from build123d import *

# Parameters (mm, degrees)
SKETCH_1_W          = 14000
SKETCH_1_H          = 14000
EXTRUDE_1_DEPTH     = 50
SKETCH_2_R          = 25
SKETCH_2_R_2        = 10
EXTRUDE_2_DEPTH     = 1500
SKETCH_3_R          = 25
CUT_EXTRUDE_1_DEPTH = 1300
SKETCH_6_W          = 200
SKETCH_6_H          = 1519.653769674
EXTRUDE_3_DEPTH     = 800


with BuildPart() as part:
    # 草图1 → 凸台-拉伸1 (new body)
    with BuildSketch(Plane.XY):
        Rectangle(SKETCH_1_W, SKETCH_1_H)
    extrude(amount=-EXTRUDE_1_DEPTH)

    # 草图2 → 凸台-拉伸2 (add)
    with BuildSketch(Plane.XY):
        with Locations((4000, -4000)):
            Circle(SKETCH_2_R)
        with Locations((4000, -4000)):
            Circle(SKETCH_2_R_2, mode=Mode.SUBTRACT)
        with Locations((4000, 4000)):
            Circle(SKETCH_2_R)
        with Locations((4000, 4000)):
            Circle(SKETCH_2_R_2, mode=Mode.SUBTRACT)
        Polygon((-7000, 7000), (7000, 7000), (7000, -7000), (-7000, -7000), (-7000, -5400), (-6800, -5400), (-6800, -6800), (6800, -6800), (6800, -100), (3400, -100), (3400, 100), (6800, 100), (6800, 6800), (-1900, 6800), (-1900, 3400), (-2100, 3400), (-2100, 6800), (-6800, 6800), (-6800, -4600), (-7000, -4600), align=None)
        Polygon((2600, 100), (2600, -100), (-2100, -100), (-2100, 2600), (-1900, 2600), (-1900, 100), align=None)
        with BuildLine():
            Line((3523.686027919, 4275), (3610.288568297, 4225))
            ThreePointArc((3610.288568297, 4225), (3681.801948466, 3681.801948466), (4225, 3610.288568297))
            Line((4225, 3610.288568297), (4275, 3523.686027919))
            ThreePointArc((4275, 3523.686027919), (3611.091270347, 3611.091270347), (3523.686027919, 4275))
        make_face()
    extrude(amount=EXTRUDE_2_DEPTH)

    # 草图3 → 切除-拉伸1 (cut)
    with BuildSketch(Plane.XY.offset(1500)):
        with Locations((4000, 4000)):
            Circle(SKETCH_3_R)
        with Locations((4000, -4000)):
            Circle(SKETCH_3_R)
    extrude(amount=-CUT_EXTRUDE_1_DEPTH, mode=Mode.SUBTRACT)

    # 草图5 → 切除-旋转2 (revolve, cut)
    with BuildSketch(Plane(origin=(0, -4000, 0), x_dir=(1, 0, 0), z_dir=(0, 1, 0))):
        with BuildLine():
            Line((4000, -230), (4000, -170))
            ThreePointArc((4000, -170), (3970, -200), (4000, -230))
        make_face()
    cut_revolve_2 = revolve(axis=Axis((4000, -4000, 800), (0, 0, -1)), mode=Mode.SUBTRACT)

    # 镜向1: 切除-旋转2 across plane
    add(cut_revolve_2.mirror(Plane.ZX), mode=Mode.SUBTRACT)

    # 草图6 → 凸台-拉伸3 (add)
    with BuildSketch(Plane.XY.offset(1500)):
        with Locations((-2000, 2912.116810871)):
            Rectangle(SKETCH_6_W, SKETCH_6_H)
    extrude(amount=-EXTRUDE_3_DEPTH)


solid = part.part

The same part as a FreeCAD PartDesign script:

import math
import FreeCAD as App
import Part
import Sketcher

V = App.Vector
Q = App.Units.Quantity


def add_polygon(sketch, points):
    """Adds a closed chain of lines whose ends are joined by coincident constraints."""
    first, n = sketch.GeometryCount, len(points)
    for a, b in zip(points, points[1:] + points[:1]):
        sketch.addGeometry(Part.LineSegment(App.Vector(*a, 0), App.Vector(*b, 0)), False)
    for i in range(n):
        sketch.addConstraint(Sketcher.Constraint("Coincident", first + i, 2, first + (i + 1) % n, 1))

doc = App.newDocument("Part")
body = doc.addObject("PartDesign::Body", "Body")

# Sketch on XY plane
sketch1 = body.newObject("Sketcher::SketchObject", "Sketch")
sketch1.AttachmentSupport = (doc.getObject("XY_Plane"), [""])
sketch1.MapMode = "FlatFace"
add_polygon(sketch1, [(-7000, 7000), (-7000, -7000), (7000, -7000), (7000, 7000)])  # lines 0-3
sketch1.addConstraint(Sketcher.Constraint("Vertical", 0))
sketch1.addConstraint(Sketcher.Constraint("Horizontal", 1))
sketch1.addConstraint(Sketcher.Constraint("Vertical", 2))
sketch1.addConstraint(Sketcher.Constraint("Horizontal", 3))
sketch1.addConstraint(Sketcher.Constraint("Symmetric", 0, 2, 2, 2, -1, 1))
sketch1.addConstraint(Sketcher.Constraint("Equal", 3, 0))
sketch1.addConstraint(Sketcher.Constraint("DistanceX", 1, 1, 1, 2, Q("14000 mm")))
pad1 = body.newObject("PartDesign::Pad", "Pad")
pad1.Profile = sketch1
pad1.Length = 50
pad1.Reversed = True

# Sketch on XY plane
sketch2 = body.newObject("Sketcher::SketchObject", "Sketch001")
sketch2.AttachmentSupport = (doc.getObject("XY_Plane"), [""])
sketch2.MapMode = "FlatFace"
sketch2.addGeometry(Part.Circle(V(4000, -4000, 0), V(0, 0, 1), 25), False)  # 0
sketch2.addGeometry(Part.Circle(V(4000, -4000, 0), V(0, 0, 1), 10), False)  # 1
sketch2.addGeometry(Part.Circle(V(4000, 4000, 0), V(0, 0, 1), 25), False)  # 2
sketch2.addGeometry(Part.Circle(V(4000, 4000, 0), V(0, 0, 1), 10), False)  # 3
add_polygon(sketch2, [(7000, 7000), (-7000, 7000), (-7000, -4600), (-6800, -4600), (-6800, 6800), (-2100, 6800), (-2100, 3400), (-1900, 3400), (-1900, 6800), (6800, 6800), (6800, 100), (3400, 100), (3400, -100), (6800, -100), (6800, -6800), (-6800, -6800), (-6800, -5400), (-7000, -5400), (-7000, -7000), (7000, -7000)])  # lines 4-23
add_polygon(sketch2, [(2600, -100), (2600, 100), (-1900, 100), (-1900, 2600), (-2100, 2600), (-2100, -100)])  # lines 24-29
sketch2.addGeometry(Part.LineSegment(V(3610.288568, 4225, 0), V(3523.686028, 4275, 0)), False)  # 30
sketch2.addGeometry(Part.ArcOfCircle(Part.Circle(V(4000, 4000, 0), V(0, 0, 1), 550), math.radians(150), math.radians(300)), False)  # 31
sketch2.addGeometry(Part.LineSegment(V(4275, 3523.686028, 0), V(4225, 3610.288568, 0)), False)  # 32
sketch2.addGeometry(Part.ArcOfCircle(Part.Circle(V(4000, 4000, 0), V(0, 0, 1), 450), math.radians(150), math.radians(300)), False)  # 33
sketch2.addConstraint(Sketcher.Constraint("Coincident", 30, 2, 31, 1))
sketch2.addConstraint(Sketcher.Constraint("Coincident", 31, 2, 32, 1))
sketch2.addConstraint(Sketcher.Constraint("Coincident", 32, 2, 33, 2))
sketch2.addConstraint(Sketcher.Constraint("Coincident", 33, 1, 30, 1))
sketch2.addConstraint(Sketcher.Constraint("Horizontal", 4))
sketch2.addConstraint(Sketcher.Constraint("Vertical", 5))
sketch2.addConstraint(Sketcher.Constraint("Horizontal", 6))
sketch2.addConstraint(Sketcher.Constraint("Vertical", 7))
sketch2.addConstraint(Sketcher.Constraint("Horizontal", 8))
sketch2.addConstraint(Sketcher.Constraint("Vertical", 9))
sketch2.addConstraint(Sketcher.Constraint("Horizontal", 10))
sketch2.addConstraint(Sketcher.Constraint("Vertical", 11))
sketch2.addConstraint(Sketcher.Constraint("Horizontal", 12))
sketch2.addConstraint(Sketcher.Constraint("Vertical", 13))
sketch2.addConstraint(Sketcher.Constraint("Horizontal", 14))
sketch2.addConstraint(Sketcher.Constraint("Vertical", 15))
sketch2.addConstraint(Sketcher.Constraint("Horizontal", 16))
sketch2.addConstraint(Sketcher.Constraint("Vertical", 17))
sketch2.addConstraint(Sketcher.Constraint("Horizontal", 18))
sketch2.addConstraint(Sketcher.Constraint("Vertical", 19))
sketch2.addConstraint(Sketcher.Constraint("Horizontal", 20))
sketch2.addConstraint(Sketcher.Constraint("Vertical", 21))
sketch2.addConstraint(Sketcher.Constraint("Horizontal", 22))
sketch2.addConstraint(Sketcher.Constraint("Vertical", 23))
sketch2.addConstraint(Sketcher.Constraint("Vertical", 24))
sketch2.addConstraint(Sketcher.Constraint("Horizontal", 25))
sketch2.addConstraint(Sketcher.Constraint("Vertical", 26))
sketch2.addConstraint(Sketcher.Constraint("Horizontal", 27))
sketch2.addConstraint(Sketcher.Constraint("Vertical", 28))
sketch2.addConstraint(Sketcher.Constraint("Horizontal", 29))
sketch2.addConstraint(Sketcher.Constraint("Coincident", 1, 3, 0, 3))
sketch2.addConstraint(Sketcher.Constraint("Coincident", 3, 3, 2, 3))
sketch2.addConstraint(Sketcher.Constraint("Coincident", 31, 3, 2, 3))
sketch2.addConstraint(Sketcher.Constraint("Coincident", 33, 3, 2, 3))
sketch2.addConstraint(Sketcher.Constraint("Equal", 0, 2))
sketch2.addConstraint(Sketcher.Constraint("Equal", 1, 3))
sketch2.addConstraint(Sketcher.Constraint("Symmetric", 7, 2, 17, 2, -1, 1))
sketch2.addConstraint(Sketcher.Constraint("Symmetric", 12, 2, 18, 2, -1, 1))
sketch2.addConstraint(Sketcher.Constraint("Symmetric", 4, 2, 22, 2, -1, 1))
sketch2.addConstraint(Sketcher.Constraint("Symmetric", 0, 3, 2, 3, -1))
sketch2.addConstraint(Sketcher.Constraint("Symmetric", 13, 2, 16, 2, -1))
sketch2.addConstraint(Sketcher.Constraint("Horizontal", 14, 2, 24, 2))
sketch2.addConstraint(Sketcher.Constraint("Horizontal", 16, 2, 28, 2))
sketch2.addConstraint(Sketcher.Constraint("Vertical", 5, 2, 20, 2))
sketch2.addConstraint(Sketcher.Constraint("Vertical", 11, 2, 25, 2))
sketch2.addConstraint(Sketcher.Constraint("Vertical", 9, 2, 27, 2))
sketch2.addConstraint(Sketcher.Constraint("Equal", 6, 10))
sketch2.addConstraint(Sketcher.Constraint("Equal", 8, 29))
sketch2.addConstraint(Sketcher.Constraint("Equal", 16, 9))
sketch2.addConstraint(Sketcher.Constraint("Equal", 27, 15))
sketch2.addConstraint(Sketcher.Constraint("Equal", 22, 23))
sketch2.addConstraint(Sketcher.Constraint("Diameter", 0, Q("50 mm")))
sketch2.addConstraint(Sketcher.Constraint("Diameter", 1, Q("20 mm")))
sketch2.addConstraint(Sketcher.Constraint("Radius", 31, Q("550 mm")))
sketch2.addConstraint(Sketcher.Constraint("Radius", 33, Q("450 mm")))
sketch2.addConstraint(Sketcher.Constraint("DistanceX", 4, 2, 4, 1, Q("14000 mm")))
sketch2.addConstraint(Sketcher.Constraint("DistanceX", 6, 1, 6, 2, Q("200 mm")))
sketch2.addConstraint(Sketcher.Constraint("DistanceX", 8, 1, 8, 2, Q("4700 mm")))
sketch2.addConstraint(Sketcher.Constraint("DistanceX", 14, 2, 14, 1, Q("3400 mm")))
sketch2.addConstraint(Sketcher.Constraint("DistanceY", 5, 2, 5, 1, Q("11600 mm")))
sketch2.addConstraint(Sketcher.Constraint("DistanceY", 7, 1, 7, 2, Q("11400 mm")))
sketch2.addConstraint(Sketcher.Constraint("DistanceY", 19, 1, 19, 2, Q("1400 mm")))
sketch2.addConstraint(Sketcher.Constraint("DistanceY", 26, 1, 26, 2, Q("2500 mm")))
sketch2.addConstraint(Sketcher.Constraint("Angle", 30, Q("150 deg")))
sketch2.addConstraint(Sketcher.Constraint("Angle", 32, Q("120 deg")))
sketch2.addConstraint(Sketcher.Constraint("DistanceX", -1, 1, 0, 3, Q("4000 mm")))
sketch2.addConstraint(Sketcher.Constraint("DistanceY", 0, 3, -1, 1, Q("4000 mm")))
sketch2.addConstraint(Sketcher.Constraint("DistanceY", -1, 1, 30, 2, Q("4275 mm")))
sketch2.addConstraint(Sketcher.Constraint("DistanceX", -1, 1, 32, 2, Q("4225 mm")))
pad2 = body.newObject("PartDesign::Pad", "Pad001")
pad2.Profile = sketch2
pad2.Length = 1500

# Sketch on XY plane
sketch3 = body.newObject("Sketcher::SketchObject", "Sketch002")
sketch3.AttachmentSupport = (doc.getObject("XY_Plane"), [""])
sketch3.MapMode = "FlatFace"
sketch3.AttachmentOffset = App.Placement(V(0, 0, 1500), App.Rotation())
sketch3.addGeometry(Part.Circle(V(4000, 4000, 0), V(0, 0, 1), 25), False)
sketch3.addGeometry(Part.Circle(V(4000, -4000, 0), V(0, 0, 1), 25), False)
sketch3.addConstraint(Sketcher.Constraint("Equal", 0, 1))
sketch3.addConstraint(Sketcher.Constraint("Symmetric", 0, 3, 1, 3, -1))
sketch3.addConstraint(Sketcher.Constraint("Diameter", 0, Q("50 mm")))
sketch3.addConstraint(Sketcher.Constraint("DistanceX", -1, 1, 0, 3, Q("4000 mm")))
sketch3.addConstraint(Sketcher.Constraint("DistanceY", -1, 1, 0, 3, Q("4000 mm")))
pocket1 = body.newObject("PartDesign::Pocket", "Pocket")
pocket1.Profile = sketch3
pocket1.Length = 1300

# Sketch on XZ plane
sketch4 = body.newObject("Sketcher::SketchObject", "Sketch003")
sketch4.AttachmentSupport = (doc.getObject("XZ_Plane"), [""])
sketch4.MapMode = "FlatFace"
sketch4.AttachmentOffset = App.Placement(V(0, 0, 4000), App.Rotation())
sketch4.addGeometry(Part.LineSegment(V(4000, 230, 0), V(4000, 170, 0)), False)
sketch4.addGeometry(Part.ArcOfCircle(Part.Circle(V(4000, 200, 0), V(0, 0, 1), 30), math.radians(90), math.radians(270)), False)
sketch4.addGeometry(Part.LineSegment(V(4000, 230, 0), V(4000, 170, 0)), True)  # axis
sketch4.addConstraint(Sketcher.Constraint("Coincident", 0, 1, 1, 1))
sketch4.addConstraint(Sketcher.Constraint("Coincident", 1, 2, 0, 2))
sketch4.addConstraint(Sketcher.Constraint("Vertical", 0))
sketch4.addConstraint(Sketcher.Constraint("Vertical", 2))
sketch4.addConstraint(Sketcher.Constraint("Coincident", 2, 1, 0, 1))
sketch4.addConstraint(Sketcher.Constraint("Vertical", 1, 3, 0, 1))
sketch4.addConstraint(Sketcher.Constraint("Equal", 0, 2))
sketch4.addConstraint(Sketcher.Constraint("Radius", 1, Q("30 mm")))
sketch4.addConstraint(Sketcher.Constraint("DistanceX", -1, 1, 1, 3, Q("4000 mm")))
sketch4.addConstraint(Sketcher.Constraint("DistanceY", -1, 1, 1, 3, Q("200 mm")))
groove = body.newObject("PartDesign::Groove", "Groove")
groove.Profile = sketch4
groove.ReferenceAxis = (sketch4, ["Axis0"])
groove.Angle = 360
doc.recompute()

mirrored = body.newObject("PartDesign::Mirrored", "Mirrored")
mirrored.Originals = [groove]
mirrored.MirrorPlane = (doc.getObject("XZ_Plane"), [""])
body.Tip = mirrored

# Sketch on XY plane
sketch5 = body.newObject("Sketcher::SketchObject", "Sketch004")
sketch5.AttachmentSupport = (doc.getObject("XY_Plane"), [""])
sketch5.MapMode = "FlatFace"
sketch5.AttachmentOffset = App.Placement(V(0, 0, 1500), App.Rotation())
add_polygon(sketch5, [(-2100, 3672), (-2100, 2152), (-1900, 2152), (-1900, 3672)])  # lines 0-3
sketch5.addConstraint(Sketcher.Constraint("Vertical", 0))
sketch5.addConstraint(Sketcher.Constraint("Horizontal", 1))
sketch5.addConstraint(Sketcher.Constraint("Vertical", 2))
sketch5.addConstraint(Sketcher.Constraint("Horizontal", 3))
sketch5.addConstraint(Sketcher.Constraint("DistanceX", 1, 1, 1, 2, Q("200 mm")))
sketch5.addConstraint(Sketcher.Constraint("DistanceX", 0, 2, -1, 1, Q("2100 mm")))
sketch5.addConstraint(Sketcher.Constraint("DistanceY", 0, 2, 0, 1, Q("1519.65377 mm")))
sketch5.addConstraint(Sketcher.Constraint("DistanceY", -1, 1, 0, 2, Q("2152.289926 mm")))
pad3 = body.newObject("PartDesign::Pad", "Pad002")
pad3.Profile = sketch5
pad3.Length = 800
pad3.Reversed = True

doc.recompute()
